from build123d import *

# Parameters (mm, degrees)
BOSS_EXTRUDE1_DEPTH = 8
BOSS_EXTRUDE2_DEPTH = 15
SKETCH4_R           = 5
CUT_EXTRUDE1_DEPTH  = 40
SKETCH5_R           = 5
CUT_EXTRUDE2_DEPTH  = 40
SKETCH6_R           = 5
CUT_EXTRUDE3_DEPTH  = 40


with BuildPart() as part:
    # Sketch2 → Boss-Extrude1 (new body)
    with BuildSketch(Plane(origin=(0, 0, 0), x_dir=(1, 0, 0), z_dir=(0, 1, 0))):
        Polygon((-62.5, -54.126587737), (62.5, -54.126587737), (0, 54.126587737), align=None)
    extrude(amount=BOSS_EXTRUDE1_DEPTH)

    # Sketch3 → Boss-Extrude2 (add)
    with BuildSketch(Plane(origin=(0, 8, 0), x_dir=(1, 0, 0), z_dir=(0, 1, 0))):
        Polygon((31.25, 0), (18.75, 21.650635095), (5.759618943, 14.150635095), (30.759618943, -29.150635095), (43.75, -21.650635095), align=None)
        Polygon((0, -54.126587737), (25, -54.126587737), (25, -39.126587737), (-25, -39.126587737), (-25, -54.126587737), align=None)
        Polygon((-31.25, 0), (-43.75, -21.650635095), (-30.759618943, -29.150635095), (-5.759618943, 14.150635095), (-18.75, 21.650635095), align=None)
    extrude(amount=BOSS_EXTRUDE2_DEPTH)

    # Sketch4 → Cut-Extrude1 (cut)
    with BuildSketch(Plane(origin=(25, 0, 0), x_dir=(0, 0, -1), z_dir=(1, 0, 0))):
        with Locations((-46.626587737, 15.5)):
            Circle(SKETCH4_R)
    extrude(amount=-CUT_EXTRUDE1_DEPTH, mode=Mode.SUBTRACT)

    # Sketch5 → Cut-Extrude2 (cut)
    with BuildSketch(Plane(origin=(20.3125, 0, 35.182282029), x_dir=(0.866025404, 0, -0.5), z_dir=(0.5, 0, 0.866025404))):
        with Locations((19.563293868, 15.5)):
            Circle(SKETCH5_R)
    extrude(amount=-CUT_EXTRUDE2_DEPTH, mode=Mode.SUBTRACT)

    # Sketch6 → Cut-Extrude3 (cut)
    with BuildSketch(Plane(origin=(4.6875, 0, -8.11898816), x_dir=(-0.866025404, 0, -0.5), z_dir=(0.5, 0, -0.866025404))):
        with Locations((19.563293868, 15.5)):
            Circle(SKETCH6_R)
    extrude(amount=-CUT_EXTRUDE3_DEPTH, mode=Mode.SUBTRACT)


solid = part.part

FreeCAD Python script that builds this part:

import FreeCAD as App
import Part
import Sketcher
from FreeCAD import Vector
Q = App.Units.Quantity


def add_polygon(sketch, points):
    """Adds a closed chain of lines whose ends are joined by coincident constraints."""
    first, n = sketch.GeometryCount, len(points)
    for a, b in zip(points, points[1:] + points[:1]):
        sketch.addGeometry(Part.LineSegment(App.Vector(*a, 0), App.Vector(*b, 0)), False)
    for i in range(n):
        sketch.addConstraint(Sketcher.Constraint("Coincident", first + i, 2, first + (i + 1) % n, 1))

doc = App.newDocument("Part")
body = doc.addObject("PartDesign::Body", "Body")

sketch1 = doc.addObject("Sketcher::SketchObject", "Sketch")
body.addObject(sketch1)
sketch1.AttachmentSupport = (doc.XZ_Plane, [""])
sketch1.MapMode = "FlatFace"
add_polygon(sketch1, [(-62.5, 54.126588), (62.5, 54.126588), (0, -54.126588)])
sketch1.addConstraint(Sketcher.Constraint("Horizontal", 0))
sketch1.addConstraint(Sketcher.Constraint("PointOnObject", 1, 2, -2))
sketch1.addConstraint(Sketcher.Constraint("Equal", 1, 2))
sketch1.addConstraint(Sketcher.Constraint("DistanceX", 0, 1, 0, 2, 125.0))
sketch1.addConstraint(Sketcher.Constraint("Angle", 1, Q("-120 deg")))
sketch1.addConstraint(Sketcher.Constraint("DistanceY", -1, 1, 0, 2, 54.126588))
pad1 = doc.addObject("PartDesign::Pad", "Pad")
body.addObject(pad1)
pad1.Profile = sketch1
pad1.Length = 8
pad1.Reversed = True

sketch2 = doc.addObject("Sketcher::SketchObject", "Sketch001")
body.addObject(sketch2)
sketch2.AttachmentSupport = (doc.XZ_Plane, [""])
sketch2.MapMode = "FlatFace"
sketch2.AttachmentOffset = App.Placement(Vector(0, 0, -8), App.Rotation())
add_polygon(sketch2, [(18.75, -21.650635), (5.759619, -14.150635), (30.759619, 29.150635), (43.75, 21.650635)])
add_polygon(sketch2, [(25, 54.126588), (25, 39.126588), (-25, 39.126588), (-25, 54.126588)])
add_polygon(sketch2, [(-43.75, 21.650635), (-30.759619, 29.150635), (-5.759619, -14.150635), (-18.75, -21.650635)])
sketch2.addConstraint(Sketcher.Constraint("Vertical", 4))
sketch2.addConstraint(Sketcher.Constraint("Horizontal", 5))
sketch2.addConstraint(Sketcher.Constraint("Vertical", 6))
sketch2.addConstraint(Sketcher.Constraint("Horizontal", 7))
sketch2.addConstraint(Sketcher.Constraint("Symmetric", 1, 2, 8, 2, -2))
sketch2.addConstraint(Sketcher.Constraint("Symmetric", 0, 2, 9, 2, -2))
sketch2.addConstraint(Sketcher.Constraint("Symmetric", 3, 2, 10, 2, -2))
sketch2.addConstraint(Sketcher.Constraint("Symmetric", 2, 2, 11, 2, -2))
sketch2.addConstraint(Sketcher.Constraint("Perpendicular", 0, 1))
sketch2.addConstraint(Sketcher.Constraint("Perpendicular", 1, 2))
sketch2.addConstraint(Sketcher.Constraint("Perpendicular", 2, 3))
sketch2.addConstraint(Sketcher.Constraint("DistanceX", 5, 2, 5, 1, 50.0))
sketch2.addConstraint(Sketcher.Constraint("DistanceY", 4, 2, 4, 1, 15.0))
sketch2.addConstraint(Sketcher.Constraint("Angle", 0, Q("150 deg")))
sketch2.addConstraint(Sketcher.Constraint("Distance", 0, 15.0))
sketch2.addConstraint(Sketcher.Constraint("Distance", 1, 50.0))
sketch2.addConstraint(Sketcher.Constraint("DistanceX", -1, 1, 4, 2, 25.0))
sketch2.addConstraint(Sketcher.Constraint("DistanceX", 10, 2, 3, 2, 37.5))
sketch2.addConstraint(Sketcher.Constraint("DistanceY", 0, 2, -1, 1, 14.150635))
sketch2.addConstraint(Sketcher.Constraint("DistanceY", -1, 1, 4, 2, 39.126588))
pad2 = doc.addObject("PartDesign::Pad", "Pad001")
body.addObject(pad2)
pad2.Profile = sketch2
pad2.Length = 15
pad2.Reversed = True

sketch3 = doc.addObject("Sketcher::SketchObject", "Sketch002")
body.addObject(sketch3)
sketch3.AttachmentSupport = (doc.YZ_Plane, [""])
sketch3.MapMode = "FlatFace"
sketch3.AttachmentOffset = App.Placement(Vector(0, 0, 25), App.Rotation())
sketch3.addGeometry(Part.Circle(Vector(15.5, 46.626588, 0), Vector(0, 0, 1), 5), False)
sketch3.addConstraint(Sketcher.Constraint("Diameter", 0, 10.0))
sketch3.addConstraint(Sketcher.Constraint("DistanceX", -1, 1, 0, 3, 15.5))
sketch3.addConstraint(Sketcher.Constraint("DistanceY", -1, 1, 0, 3, 46.626588))
pocket1 = doc.addObject("PartDesign::Pocket", "Pocket")
body.addObject(pocket1)
pocket1.Profile = sketch3
pocket1.Length = 40

sketch4 = doc.addObject("Sketcher::SketchObject", "Sketch003")
body.addObject(sketch4)
sketch4.Placement = App.Placement(Vector(20.3125, 0, 35.182282), App.Rotation(Vector(0.866025404, 0, -0.5), Vector(0, 1, 0), Vector(0.5, 0, 0.866025404), "ZXY"))
sketch4.addGeometry(Part.Circle(Vector(19.563294, 15.5, 0), Vector(0, 0, 1), 5), False)
sketch4.addConstraint(Sketcher.Constraint("Diameter", 0, 10.0))
sketch4.addConstraint(Sketcher.Constraint("DistanceY", -1, 1, 0, 3, 15.5))
sketch4.addConstraint(Sketcher.Constraint("DistanceX", -1, 1, 0, 3, 19.563294))
pocket2 = doc.addObject("PartDesign::Pocket", "Pocket001")
body.addObject(pocket2)
pocket2.Profile = sketch4
pocket2.Length = 40

sketch5 = doc.addObject("Sketcher::SketchObject", "Sketch004")
body.addObject(sketch5)
sketch5.Placement = App.Placement(Vector(4.6875, 0, -8.118988), App.Rotation(Vector(-0.866025404, 0, -0.5), Vector(0, 1, 0), Vector(0.5, 0, -0.866025404), "ZXY"))
sketch5.addGeometry(Part.Circle(Vector(19.563294, 15.5, 0), Vector(0, 0, 1), 5), False)
sketch5.addConstraint(Sketcher.Constraint("Diameter", 0, 10.0))
sketch5.addConstraint(Sketcher.Constraint("DistanceY", -1, 1, 0, 3, 15.5))
sketch5.addConstraint(Sketcher.Constraint("DistanceX", -1, 1, 0, 3, 19.563294))
pocket3 = doc.addObject("PartDesign::Pocket", "Pocket002")
body.addObject(pocket3)
pocket3.Profile = sketch5
pocket3.Length = 40

doc.recompute()
